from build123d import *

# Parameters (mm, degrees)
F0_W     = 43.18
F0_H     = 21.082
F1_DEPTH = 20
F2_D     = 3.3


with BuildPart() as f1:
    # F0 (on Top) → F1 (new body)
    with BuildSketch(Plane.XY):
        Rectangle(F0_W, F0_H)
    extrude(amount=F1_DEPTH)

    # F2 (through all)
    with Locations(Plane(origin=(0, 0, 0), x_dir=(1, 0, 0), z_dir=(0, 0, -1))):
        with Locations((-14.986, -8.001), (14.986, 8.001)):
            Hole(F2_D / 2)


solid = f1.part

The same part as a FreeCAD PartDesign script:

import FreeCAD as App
import Part
import Sketcher

V = App.Vector
Q = App.Units.Quantity


def add_polygon(sketch, points):
    """Adds a closed chain of lines whose ends are joined by coincident constraints."""
    first, n = sketch.GeometryCount, len(points)
    for a, b in zip(points, points[1:] + points[:1]):
        sketch.addGeometry(Part.LineSegment(App.Vector(*a, 0), App.Vector(*b, 0)), False)
    for i in range(n):
        sketch.addConstraint(Sketcher.Constraint("Coincident", first + i, 2, first + (i + 1) % n, 1))

doc = App.newDocument("Part")
body = doc.addObject("PartDesign::Body", "Body")

# Sketch on XY plane
sketch1 = body.newObject("Sketcher::SketchObject", "Sketch")
sketch1.AttachmentSupport = (doc.getObject("XY_Plane"), [""])
sketch1.MapMode = "FlatFace"
add_polygon(sketch1, [(-22, 11), (-22, -11), (22, -11), (22, 11)])  # lines 0-3
sketch1.addConstraint(Sketcher.Constraint("Vertical", 0))
sketch1.addConstraint(Sketcher.Constraint("Horizontal", 1))
sketch1.addConstraint(Sketcher.Constraint("Vertical", 2))
sketch1.addConstraint(Sketcher.Constraint("Horizontal", 3))
sketch1.addConstraint(Sketcher.Constraint("Symmetric", 0, 2, 2, 2, -1, 1))
sketch1.addConstraint(Sketcher.Constraint("DistanceX", 1, 1, 1, 2, Q("43.18 mm")))
sketch1.addConstraint(Sketcher.Constraint("DistanceY", 0, 2, 0, 1, Q("21.082 mm")))
pad1 = body.newObject("PartDesign::Pad", "Pad")
pad1.Profile = sketch1
pad1.Length = 20

# Sketch on XY plane
sketch2 = body.newObject("Sketcher::SketchObject", "Sketch001")
sketch2.AttachmentSupport = (doc.getObject("XY_Plane"), [""])
sketch2.MapMode = "FlatFace"
sketch2.addGeometry(Part.Circle(V(-15, 8, 0), V(0, 0, 1), 1.6), False)
sketch2.addGeometry(Part.Circle(V(15, -8, 0), V(0, 0, 1), 1.6), False)
sketch2.addConstraint(Sketcher.Constraint("Equal", 0, 1))
sketch2.addConstraint(Sketcher.Constraint("Symmetric", 0, 3, 1, 3, -1, 1))
sketch2.addConstraint(Sketcher.Constraint("Diameter", 0, Q("3.3 mm")))
sketch2.addConstraint(Sketcher.Constraint("DistanceX", 0, 3, -1, 1, Q("14.986 mm")))
sketch2.addConstraint(Sketcher.Constraint("DistanceY", -1, 1, 0, 3, Q("8.001 mm")))
doc.recompute()
hole = body.newObject("PartDesign::Hole", "Hole")
hole.Profile = sketch2
hole.ThreadType = "None"
hole.Diameter = 3.3
hole.DepthType = "ThroughAll"
hole.Reversed = True

doc.recompute()
